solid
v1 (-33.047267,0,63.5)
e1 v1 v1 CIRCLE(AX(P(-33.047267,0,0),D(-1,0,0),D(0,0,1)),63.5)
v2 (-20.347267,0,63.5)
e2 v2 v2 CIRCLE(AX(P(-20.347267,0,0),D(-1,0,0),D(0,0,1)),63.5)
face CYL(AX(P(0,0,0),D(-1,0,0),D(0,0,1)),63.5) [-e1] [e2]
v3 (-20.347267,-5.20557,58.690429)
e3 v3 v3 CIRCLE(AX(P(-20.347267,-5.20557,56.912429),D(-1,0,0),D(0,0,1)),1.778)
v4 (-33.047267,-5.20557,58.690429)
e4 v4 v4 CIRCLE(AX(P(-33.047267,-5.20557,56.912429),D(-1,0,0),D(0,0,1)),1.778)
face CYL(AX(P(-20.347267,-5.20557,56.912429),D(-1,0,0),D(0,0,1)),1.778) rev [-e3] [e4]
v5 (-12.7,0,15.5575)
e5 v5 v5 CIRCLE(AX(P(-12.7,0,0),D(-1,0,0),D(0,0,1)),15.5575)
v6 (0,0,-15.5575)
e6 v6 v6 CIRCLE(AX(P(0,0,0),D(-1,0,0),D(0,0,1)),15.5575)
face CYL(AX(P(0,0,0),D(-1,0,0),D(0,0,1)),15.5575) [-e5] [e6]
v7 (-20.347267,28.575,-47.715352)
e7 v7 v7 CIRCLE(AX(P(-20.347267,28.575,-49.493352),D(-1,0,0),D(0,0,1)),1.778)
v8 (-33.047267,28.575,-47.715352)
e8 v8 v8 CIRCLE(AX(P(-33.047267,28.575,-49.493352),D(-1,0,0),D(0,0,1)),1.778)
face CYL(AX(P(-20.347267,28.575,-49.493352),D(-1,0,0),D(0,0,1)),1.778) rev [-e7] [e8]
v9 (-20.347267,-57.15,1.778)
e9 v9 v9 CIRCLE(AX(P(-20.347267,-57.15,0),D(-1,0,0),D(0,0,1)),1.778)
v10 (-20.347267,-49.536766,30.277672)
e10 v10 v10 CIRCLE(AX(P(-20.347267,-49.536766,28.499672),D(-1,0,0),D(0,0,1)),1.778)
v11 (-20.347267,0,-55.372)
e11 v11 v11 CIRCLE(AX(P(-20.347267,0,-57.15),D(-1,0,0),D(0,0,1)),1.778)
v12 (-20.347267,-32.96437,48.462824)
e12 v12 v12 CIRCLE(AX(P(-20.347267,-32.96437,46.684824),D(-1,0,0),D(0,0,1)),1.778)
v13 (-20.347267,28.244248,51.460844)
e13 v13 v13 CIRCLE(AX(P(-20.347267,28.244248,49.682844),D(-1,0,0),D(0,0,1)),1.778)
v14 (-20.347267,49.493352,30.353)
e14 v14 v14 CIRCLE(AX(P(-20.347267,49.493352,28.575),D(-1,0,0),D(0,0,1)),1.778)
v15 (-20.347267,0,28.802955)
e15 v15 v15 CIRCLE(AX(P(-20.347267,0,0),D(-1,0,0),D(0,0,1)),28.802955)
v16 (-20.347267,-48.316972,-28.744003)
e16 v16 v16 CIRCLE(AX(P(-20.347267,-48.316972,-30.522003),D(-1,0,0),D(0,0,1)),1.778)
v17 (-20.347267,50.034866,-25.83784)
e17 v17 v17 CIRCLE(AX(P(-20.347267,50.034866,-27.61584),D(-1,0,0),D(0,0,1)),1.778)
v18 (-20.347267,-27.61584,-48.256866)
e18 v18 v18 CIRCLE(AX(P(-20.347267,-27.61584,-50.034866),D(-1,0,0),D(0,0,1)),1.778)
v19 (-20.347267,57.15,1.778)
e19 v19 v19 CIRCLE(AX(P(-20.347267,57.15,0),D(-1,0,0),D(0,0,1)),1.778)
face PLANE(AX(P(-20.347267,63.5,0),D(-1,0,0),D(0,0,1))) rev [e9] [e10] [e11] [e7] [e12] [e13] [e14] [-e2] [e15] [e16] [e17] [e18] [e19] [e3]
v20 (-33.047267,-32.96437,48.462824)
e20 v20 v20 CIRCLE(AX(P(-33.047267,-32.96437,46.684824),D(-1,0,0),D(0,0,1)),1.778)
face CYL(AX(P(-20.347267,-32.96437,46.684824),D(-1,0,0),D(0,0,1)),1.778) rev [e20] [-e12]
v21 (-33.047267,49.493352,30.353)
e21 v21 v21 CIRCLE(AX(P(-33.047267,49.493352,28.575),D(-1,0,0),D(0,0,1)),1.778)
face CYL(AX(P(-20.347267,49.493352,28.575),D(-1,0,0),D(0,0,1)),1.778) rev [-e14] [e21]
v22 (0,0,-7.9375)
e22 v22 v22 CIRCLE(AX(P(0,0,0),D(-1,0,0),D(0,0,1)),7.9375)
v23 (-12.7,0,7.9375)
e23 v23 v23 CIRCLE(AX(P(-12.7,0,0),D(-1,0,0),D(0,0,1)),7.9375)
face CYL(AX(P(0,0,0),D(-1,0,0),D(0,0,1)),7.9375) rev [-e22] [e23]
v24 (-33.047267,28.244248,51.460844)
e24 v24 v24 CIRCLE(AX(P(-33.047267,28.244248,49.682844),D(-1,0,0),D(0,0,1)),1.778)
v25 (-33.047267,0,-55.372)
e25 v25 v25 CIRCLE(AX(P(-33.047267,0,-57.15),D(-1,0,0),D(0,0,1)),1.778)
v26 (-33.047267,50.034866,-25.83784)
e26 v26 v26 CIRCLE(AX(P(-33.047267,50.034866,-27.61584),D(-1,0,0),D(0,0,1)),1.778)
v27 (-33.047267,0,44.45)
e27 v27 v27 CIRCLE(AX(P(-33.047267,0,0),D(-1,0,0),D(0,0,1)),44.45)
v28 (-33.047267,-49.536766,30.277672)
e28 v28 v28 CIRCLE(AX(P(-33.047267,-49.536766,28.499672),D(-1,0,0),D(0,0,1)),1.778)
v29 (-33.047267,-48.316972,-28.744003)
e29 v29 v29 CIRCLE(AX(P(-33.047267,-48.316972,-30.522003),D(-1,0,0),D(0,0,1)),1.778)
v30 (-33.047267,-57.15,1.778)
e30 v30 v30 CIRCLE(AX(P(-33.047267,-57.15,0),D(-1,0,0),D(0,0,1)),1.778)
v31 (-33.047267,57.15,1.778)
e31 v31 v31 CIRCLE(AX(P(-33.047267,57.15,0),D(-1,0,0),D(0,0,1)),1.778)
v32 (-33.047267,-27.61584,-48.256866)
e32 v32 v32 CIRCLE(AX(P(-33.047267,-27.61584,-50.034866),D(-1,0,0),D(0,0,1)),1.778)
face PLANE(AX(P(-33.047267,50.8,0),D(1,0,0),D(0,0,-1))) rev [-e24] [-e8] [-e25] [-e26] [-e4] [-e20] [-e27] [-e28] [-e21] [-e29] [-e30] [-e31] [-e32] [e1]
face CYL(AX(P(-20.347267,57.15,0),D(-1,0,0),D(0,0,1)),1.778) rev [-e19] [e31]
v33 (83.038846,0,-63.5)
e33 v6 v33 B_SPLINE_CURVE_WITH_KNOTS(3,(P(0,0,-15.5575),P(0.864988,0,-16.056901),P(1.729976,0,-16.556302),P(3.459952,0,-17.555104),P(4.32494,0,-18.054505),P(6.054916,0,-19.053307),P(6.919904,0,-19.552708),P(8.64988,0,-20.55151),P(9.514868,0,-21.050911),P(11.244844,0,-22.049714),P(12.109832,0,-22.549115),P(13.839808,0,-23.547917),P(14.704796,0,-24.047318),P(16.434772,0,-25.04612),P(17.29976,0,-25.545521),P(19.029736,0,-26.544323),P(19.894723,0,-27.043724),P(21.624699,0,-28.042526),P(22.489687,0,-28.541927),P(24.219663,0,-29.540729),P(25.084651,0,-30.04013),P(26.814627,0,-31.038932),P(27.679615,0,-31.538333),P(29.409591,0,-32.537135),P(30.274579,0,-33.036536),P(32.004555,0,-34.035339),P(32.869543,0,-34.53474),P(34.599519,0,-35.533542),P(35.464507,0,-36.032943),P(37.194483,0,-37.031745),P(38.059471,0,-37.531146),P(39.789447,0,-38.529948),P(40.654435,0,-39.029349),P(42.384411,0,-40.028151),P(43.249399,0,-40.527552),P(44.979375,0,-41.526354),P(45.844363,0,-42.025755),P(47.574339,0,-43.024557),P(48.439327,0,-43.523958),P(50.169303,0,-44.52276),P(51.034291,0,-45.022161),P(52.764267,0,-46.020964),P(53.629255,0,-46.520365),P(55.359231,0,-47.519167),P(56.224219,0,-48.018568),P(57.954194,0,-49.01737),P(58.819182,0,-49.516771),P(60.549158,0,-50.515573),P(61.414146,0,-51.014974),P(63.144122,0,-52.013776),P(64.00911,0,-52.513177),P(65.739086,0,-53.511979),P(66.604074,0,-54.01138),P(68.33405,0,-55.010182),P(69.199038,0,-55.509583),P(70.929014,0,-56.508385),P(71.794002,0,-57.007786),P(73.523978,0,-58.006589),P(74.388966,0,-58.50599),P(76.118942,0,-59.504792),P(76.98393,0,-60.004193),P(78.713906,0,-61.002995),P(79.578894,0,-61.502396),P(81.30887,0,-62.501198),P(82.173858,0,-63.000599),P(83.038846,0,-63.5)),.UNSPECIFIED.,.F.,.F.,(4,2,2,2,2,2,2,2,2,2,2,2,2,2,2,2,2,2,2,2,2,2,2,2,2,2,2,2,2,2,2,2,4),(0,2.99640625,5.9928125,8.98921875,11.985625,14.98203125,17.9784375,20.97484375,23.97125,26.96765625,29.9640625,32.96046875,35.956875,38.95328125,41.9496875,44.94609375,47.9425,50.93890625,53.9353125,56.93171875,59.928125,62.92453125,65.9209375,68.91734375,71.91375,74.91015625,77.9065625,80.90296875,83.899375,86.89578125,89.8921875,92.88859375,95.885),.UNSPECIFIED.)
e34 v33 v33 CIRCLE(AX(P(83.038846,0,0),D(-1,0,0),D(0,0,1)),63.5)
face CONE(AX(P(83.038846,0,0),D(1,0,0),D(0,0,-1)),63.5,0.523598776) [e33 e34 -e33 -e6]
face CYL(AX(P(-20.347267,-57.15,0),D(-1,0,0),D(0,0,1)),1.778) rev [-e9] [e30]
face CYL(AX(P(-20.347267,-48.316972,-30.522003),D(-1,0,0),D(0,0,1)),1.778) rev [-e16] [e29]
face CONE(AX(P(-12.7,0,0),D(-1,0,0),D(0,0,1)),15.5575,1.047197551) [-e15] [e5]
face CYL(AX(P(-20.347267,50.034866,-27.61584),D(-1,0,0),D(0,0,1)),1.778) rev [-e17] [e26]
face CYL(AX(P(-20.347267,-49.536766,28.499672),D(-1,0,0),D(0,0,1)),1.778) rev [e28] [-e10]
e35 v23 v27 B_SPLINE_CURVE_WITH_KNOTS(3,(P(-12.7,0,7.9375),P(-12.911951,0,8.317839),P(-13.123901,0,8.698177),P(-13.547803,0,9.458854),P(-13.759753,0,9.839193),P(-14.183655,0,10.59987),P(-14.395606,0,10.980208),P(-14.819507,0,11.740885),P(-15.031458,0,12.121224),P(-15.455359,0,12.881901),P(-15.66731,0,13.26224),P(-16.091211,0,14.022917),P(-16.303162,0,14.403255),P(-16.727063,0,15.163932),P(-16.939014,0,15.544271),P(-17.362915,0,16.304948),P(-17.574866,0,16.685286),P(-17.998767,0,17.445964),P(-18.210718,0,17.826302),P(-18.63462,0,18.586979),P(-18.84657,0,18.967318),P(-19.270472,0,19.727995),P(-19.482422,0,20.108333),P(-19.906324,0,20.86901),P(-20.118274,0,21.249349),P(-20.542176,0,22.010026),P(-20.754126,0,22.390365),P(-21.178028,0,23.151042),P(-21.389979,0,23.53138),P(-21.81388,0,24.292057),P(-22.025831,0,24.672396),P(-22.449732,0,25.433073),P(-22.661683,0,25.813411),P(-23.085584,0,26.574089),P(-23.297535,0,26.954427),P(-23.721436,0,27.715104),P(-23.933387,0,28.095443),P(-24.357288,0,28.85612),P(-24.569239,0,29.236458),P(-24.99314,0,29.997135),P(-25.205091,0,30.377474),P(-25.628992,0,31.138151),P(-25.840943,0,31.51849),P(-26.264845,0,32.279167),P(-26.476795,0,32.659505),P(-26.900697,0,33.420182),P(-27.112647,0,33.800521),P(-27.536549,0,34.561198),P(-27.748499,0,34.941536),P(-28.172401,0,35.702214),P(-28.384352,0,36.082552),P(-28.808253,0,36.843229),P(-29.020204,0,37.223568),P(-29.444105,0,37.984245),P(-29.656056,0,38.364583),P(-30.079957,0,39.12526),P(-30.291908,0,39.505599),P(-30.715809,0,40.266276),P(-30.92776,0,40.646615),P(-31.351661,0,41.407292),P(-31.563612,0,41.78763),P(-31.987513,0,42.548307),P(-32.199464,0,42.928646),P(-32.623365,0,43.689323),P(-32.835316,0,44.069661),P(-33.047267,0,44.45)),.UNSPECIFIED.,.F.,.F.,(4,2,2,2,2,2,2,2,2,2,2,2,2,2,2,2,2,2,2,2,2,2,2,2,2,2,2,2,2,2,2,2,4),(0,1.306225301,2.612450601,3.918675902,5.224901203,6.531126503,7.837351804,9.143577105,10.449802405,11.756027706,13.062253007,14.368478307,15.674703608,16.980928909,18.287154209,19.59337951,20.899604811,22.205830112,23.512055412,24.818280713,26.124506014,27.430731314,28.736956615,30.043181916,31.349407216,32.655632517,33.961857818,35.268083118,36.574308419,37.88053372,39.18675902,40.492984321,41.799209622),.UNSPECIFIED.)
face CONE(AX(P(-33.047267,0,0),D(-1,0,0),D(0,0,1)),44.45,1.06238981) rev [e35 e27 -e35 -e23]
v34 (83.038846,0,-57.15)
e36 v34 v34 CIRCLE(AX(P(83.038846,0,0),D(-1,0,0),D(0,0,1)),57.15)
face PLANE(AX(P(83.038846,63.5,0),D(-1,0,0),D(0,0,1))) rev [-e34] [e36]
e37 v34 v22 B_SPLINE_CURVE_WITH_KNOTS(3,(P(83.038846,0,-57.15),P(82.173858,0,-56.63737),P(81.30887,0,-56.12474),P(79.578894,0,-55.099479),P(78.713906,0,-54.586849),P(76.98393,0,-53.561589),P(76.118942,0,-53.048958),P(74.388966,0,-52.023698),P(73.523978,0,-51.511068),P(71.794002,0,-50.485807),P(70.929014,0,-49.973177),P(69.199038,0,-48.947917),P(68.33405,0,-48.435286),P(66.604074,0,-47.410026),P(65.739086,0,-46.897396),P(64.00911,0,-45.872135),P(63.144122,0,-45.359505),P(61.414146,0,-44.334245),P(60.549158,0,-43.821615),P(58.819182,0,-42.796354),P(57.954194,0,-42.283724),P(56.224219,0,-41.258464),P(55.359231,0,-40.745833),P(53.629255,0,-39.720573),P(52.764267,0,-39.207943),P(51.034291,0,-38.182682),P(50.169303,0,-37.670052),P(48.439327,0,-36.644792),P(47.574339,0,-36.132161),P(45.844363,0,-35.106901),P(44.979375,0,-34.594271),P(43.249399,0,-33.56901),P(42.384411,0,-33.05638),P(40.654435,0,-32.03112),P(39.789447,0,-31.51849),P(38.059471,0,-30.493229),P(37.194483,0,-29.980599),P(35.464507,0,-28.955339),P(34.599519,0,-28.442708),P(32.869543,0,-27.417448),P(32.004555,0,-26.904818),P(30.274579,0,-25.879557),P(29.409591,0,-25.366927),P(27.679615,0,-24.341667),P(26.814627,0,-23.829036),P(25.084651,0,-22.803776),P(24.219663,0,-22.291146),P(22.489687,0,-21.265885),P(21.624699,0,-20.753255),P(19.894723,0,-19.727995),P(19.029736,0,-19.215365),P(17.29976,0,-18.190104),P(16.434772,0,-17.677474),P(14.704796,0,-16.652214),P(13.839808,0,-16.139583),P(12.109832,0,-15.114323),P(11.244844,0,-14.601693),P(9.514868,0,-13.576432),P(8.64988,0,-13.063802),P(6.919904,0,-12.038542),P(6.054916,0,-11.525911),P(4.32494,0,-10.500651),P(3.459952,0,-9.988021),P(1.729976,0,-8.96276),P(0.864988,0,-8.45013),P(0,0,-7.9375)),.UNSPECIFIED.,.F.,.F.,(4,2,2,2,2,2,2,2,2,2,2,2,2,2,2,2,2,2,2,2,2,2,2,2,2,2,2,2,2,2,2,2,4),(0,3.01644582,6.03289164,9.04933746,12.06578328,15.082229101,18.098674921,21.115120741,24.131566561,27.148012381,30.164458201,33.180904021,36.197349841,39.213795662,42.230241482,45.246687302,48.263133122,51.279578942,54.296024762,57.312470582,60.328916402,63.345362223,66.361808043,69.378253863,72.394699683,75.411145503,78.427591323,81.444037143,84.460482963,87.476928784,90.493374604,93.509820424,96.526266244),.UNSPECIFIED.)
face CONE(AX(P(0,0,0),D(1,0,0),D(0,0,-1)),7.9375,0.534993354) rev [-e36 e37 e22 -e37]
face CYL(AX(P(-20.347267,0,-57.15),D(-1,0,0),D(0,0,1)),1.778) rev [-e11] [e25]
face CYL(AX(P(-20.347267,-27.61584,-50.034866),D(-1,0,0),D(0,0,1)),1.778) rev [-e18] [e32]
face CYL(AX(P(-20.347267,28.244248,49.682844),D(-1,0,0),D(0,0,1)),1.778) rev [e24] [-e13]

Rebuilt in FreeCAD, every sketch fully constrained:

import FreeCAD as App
import Part
import Sketcher
from FreeCAD import Vector
Q = App.Units.Quantity

doc = App.newDocument("Part")
body = doc.addObject("PartDesign::Body", "Body")

# Sketch on XY plane
sketch1 = doc.addObject("Sketcher::SketchObject", "Sketch")
body.addObject(sketch1)
sketch1.AttachmentSupport = (doc.XY_Plane, [""])
sketch1.MapMode = "FlatFace"
sketch1.addGeometry([
    Part.LineSegment(Vector(83, 64, 0), Vector(0, 16, 0)),  # 0
    Part.LineSegment(Vector(0, 16, 0), Vector(-13, 16, 0)),  # 1
    Part.LineSegment(Vector(-13, 16, 0), Vector(-20, 29, 0)),  # 2
    Part.LineSegment(Vector(-20, 29, 0), Vector(-20, 64, 0)),  # 3
    Part.LineSegment(Vector(-20, 64, 0), Vector(-33, 64, 0)),  # 4
    Part.LineSegment(Vector(-33, 64, 0), Vector(-33, 44, 0)),  # 5
    Part.LineSegment(Vector(-33, 44, 0), Vector(-13, 8, 0)),  # 6
    Part.LineSegment(Vector(-13, 8, 0), Vector(0, 8, 0)),  # 7
    Part.LineSegment(Vector(0, 8, 0), Vector(83, 57, 0)),  # 8
    Part.LineSegment(Vector(83, 57, 0), Vector(83, 64, 0)),  # 9
], False)
sketch1.addConstraint([
    Sketcher.Constraint("Coincident", 0, 2, 1, 1),
    Sketcher.Constraint("Coincident", 1, 2, 2, 1),
    Sketcher.Constraint("Coincident", 2, 2, 3, 1),
    Sketcher.Constraint("Coincident", 3, 2, 4, 1),
    Sketcher.Constraint("Coincident", 4, 2, 5, 1),
    Sketcher.Constraint("Coincident", 5, 2, 6, 1),
    Sketcher.Constraint("Coincident", 6, 2, 7, 1),
    Sketcher.Constraint("Coincident", 7, 2, 8, 1),
    Sketcher.Constraint("Coincident", 8, 2, 9, 1),
    Sketcher.Constraint("Coincident", 9, 2, 0, 1),
    Sketcher.Constraint("Horizontal", 1),
    Sketcher.Constraint("Vertical", 3),
    Sketcher.Constraint("Horizontal", 4),
    Sketcher.Constraint("Vertical", 5),
    Sketcher.Constraint("Horizontal", 7),
    Sketcher.Constraint("Vertical", 9),
    Sketcher.Constraint("PointOnObject", 0, 2, -2),
    Sketcher.Constraint("PointOnObject", 7, 2, -2),
    Sketcher.Constraint("Perpendicular", 0, 2),
    Sketcher.Constraint("Horizontal", 4, 2, 9, 2),
    Sketcher.Constraint("Vertical", 1, 2, 6, 2),
    Sketcher.Constraint("Equal", 1, 4),
    Sketcher.Constraint("DistanceX", 1, 2, 1, 1, Q("0.5 in")),
    Sketcher.Constraint("Angle", 0, Q("-150 deg")),
    Sketcher.Constraint("DistanceY", 5, 2, 5, 1, Q("0.75 in")),
    Sketcher.Constraint("DistanceY", 9, 1, 9, 2, Q("0.25 in")),
    Sketcher.Constraint("DistanceY", -1, 1, 3, 2, Q("2.5 in")),
    Sketcher.Constraint("DistanceY", 6, 2, 1, 2, Q("0.3 in")),
    Sketcher.Constraint("Distance", 0, Q("3.775 in")),
    Sketcher.Constraint("Distance", 6, 41.79921),
])
revolution = doc.addObject("PartDesign::Revolution", "Revolution")
body.addObject(revolution)
revolution.Profile = sketch1
revolution.ReferenceAxis = (sketch1, ["H_Axis"])
revolution.Angle = 360

# Sketch on YZ plane
sketch2 = doc.addObject("Sketcher::SketchObject", "Sketch001")
body.addObject(sketch2)
sketch2.AttachmentSupport = (doc.YZ_Plane, [""])
sketch2.MapMode = "FlatFace"
sketch2.AttachmentOffset = App.Placement(Vector(0, 0, -33.047267), App.Rotation())
sketch2.addGeometry([
    Part.Circle(Vector(-5.2, 56.9, 0), Vector(0, 0, 1), 1.8),  # 0
    Part.Circle(Vector(57.1, 0, 0), Vector(0, 0, 1), 1.8),  # 1
    Part.Circle(Vector(0, -57.1, 0), Vector(0, 0, 1), 1.8),  # 2
    Part.Circle(Vector(50, -27.6, 0), Vector(0, 0, 1), 1.8),  # 3
    Part.Circle(Vector(28.6, -49.5, 0), Vector(0, 0, 1), 1.8),  # 4
    Part.Circle(Vector(49.5, 28.6, 0), Vector(0, 0, 1), 1.8),  # 5
    Part.Circle(Vector(28.2, 49.7, 0), Vector(0, 0, 1), 1.8),  # 6
    Part.Circle(Vector(-48.3, -30.5, 0), Vector(0, 0, 1), 1.8),  # 7
    Part.Circle(Vector(-27.6, -50, 0), Vector(0, 0, 1), 1.8),  # 8
    Part.Circle(Vector(-33, 46.7, 0), Vector(0, 0, 1), 1.8),  # 9
    Part.Circle(Vector(-49.5, 28.5, 0), Vector(0, 0, 1), 1.8),  # 10
    Part.Circle(Vector(-57.1, 0, 0), Vector(0, 0, 1), 1.8),  # 11
], False)
sketch2.addConstraint([
    Sketcher.Constraint("Equal", 0, 1),
    Sketcher.Constraint("Equal", 1, 2),
    Sketcher.Constraint("Equal", 2, 3),
    Sketcher.Constraint("Equal", 3, 4),
    Sketcher.Constraint("Equal", 4, 5),
    Sketcher.Constraint("Equal", 5, 6),
    Sketcher.Constraint("Equal", 6, 7),
    Sketcher.Constraint("Equal", 7, 8),
    Sketcher.Constraint("Equal", 8, 9),
    Sketcher.Constraint("Equal", 9, 10),
    Sketcher.Constraint("Equal", 10, 11),
    Sketcher.Constraint("Symmetric", 1, 3, 11, 3, -1, 1),
    Sketcher.Constraint("PointOnObject", 1, 3, -1),
    Sketcher.Constraint("PointOnObject", 2, 3, -2),
    Sketcher.Constraint("Diameter", 0, Q("0.14 in")),
    Sketcher.Constraint("DistanceX", -1, 1, 1, 3, Q("2.25 in")),
    Sketcher.Constraint("DistanceY", 2, 3, -1, 1, Q("2.25 in")),
    Sketcher.Constraint("DistanceX", -1, 1, 4, 3, Q("1.125 in")),
    Sketcher.Constraint("DistanceY", -1, 1, 5, 3, Q("1.125 in")),
    Sketcher.Constraint("DistanceX", 9, 3, 0, 3, 27.7588),
    Sketcher.Constraint("DistanceX", 0, 3, -1, 1, 5.20557),
    Sketcher.Constraint("DistanceY", -1, 1, 0, 3, 56.912429),
    Sketcher.Constraint("DistanceY", 3, 3, -1, 1, 27.61584),
    Sketcher.Constraint("DistanceY", 4, 3, -1, 1, 49.493352),
    Sketcher.Constraint("DistanceX", -1, 1, 5, 3, 49.493352),
    Sketcher.Constraint("DistanceX", -1, 1, 6, 3, 28.244248),
    Sketcher.Constraint("DistanceX", 8, 3, -1, 1, 27.61584),
    Sketcher.Constraint("DistanceY", -1, 1, 10, 3, 28.499672),
    Sketcher.Constraint("DistanceX", 6, 3, 3, 3, 21.790618),
    Sketcher.Constraint("DistanceY", 4, 3, 7, 3, 18.971349),
    Sketcher.Constraint("DistanceX", 7, 3, 3, 3, 98.351839),
    Sketcher.Constraint("DistanceY", 9, 3, 6, 3, 2.998019),
    Sketcher.Constraint("DistanceY", 8, 3, 9, 3, 96.719691),
    Sketcher.Constraint("DistanceY", 10, 3, 6, 3, 21.183172),
    Sketcher.Constraint("DistanceX", 10, 3, -1, 1, 49.536766),
])
pocket1 = doc.addObject("PartDesign::Pocket", "Pocket")
body.addObject(pocket1)
pocket1.Profile = sketch2
pocket1.Length = Q("0.5 in")
pocket1.Reversed = True

doc.recompute()
